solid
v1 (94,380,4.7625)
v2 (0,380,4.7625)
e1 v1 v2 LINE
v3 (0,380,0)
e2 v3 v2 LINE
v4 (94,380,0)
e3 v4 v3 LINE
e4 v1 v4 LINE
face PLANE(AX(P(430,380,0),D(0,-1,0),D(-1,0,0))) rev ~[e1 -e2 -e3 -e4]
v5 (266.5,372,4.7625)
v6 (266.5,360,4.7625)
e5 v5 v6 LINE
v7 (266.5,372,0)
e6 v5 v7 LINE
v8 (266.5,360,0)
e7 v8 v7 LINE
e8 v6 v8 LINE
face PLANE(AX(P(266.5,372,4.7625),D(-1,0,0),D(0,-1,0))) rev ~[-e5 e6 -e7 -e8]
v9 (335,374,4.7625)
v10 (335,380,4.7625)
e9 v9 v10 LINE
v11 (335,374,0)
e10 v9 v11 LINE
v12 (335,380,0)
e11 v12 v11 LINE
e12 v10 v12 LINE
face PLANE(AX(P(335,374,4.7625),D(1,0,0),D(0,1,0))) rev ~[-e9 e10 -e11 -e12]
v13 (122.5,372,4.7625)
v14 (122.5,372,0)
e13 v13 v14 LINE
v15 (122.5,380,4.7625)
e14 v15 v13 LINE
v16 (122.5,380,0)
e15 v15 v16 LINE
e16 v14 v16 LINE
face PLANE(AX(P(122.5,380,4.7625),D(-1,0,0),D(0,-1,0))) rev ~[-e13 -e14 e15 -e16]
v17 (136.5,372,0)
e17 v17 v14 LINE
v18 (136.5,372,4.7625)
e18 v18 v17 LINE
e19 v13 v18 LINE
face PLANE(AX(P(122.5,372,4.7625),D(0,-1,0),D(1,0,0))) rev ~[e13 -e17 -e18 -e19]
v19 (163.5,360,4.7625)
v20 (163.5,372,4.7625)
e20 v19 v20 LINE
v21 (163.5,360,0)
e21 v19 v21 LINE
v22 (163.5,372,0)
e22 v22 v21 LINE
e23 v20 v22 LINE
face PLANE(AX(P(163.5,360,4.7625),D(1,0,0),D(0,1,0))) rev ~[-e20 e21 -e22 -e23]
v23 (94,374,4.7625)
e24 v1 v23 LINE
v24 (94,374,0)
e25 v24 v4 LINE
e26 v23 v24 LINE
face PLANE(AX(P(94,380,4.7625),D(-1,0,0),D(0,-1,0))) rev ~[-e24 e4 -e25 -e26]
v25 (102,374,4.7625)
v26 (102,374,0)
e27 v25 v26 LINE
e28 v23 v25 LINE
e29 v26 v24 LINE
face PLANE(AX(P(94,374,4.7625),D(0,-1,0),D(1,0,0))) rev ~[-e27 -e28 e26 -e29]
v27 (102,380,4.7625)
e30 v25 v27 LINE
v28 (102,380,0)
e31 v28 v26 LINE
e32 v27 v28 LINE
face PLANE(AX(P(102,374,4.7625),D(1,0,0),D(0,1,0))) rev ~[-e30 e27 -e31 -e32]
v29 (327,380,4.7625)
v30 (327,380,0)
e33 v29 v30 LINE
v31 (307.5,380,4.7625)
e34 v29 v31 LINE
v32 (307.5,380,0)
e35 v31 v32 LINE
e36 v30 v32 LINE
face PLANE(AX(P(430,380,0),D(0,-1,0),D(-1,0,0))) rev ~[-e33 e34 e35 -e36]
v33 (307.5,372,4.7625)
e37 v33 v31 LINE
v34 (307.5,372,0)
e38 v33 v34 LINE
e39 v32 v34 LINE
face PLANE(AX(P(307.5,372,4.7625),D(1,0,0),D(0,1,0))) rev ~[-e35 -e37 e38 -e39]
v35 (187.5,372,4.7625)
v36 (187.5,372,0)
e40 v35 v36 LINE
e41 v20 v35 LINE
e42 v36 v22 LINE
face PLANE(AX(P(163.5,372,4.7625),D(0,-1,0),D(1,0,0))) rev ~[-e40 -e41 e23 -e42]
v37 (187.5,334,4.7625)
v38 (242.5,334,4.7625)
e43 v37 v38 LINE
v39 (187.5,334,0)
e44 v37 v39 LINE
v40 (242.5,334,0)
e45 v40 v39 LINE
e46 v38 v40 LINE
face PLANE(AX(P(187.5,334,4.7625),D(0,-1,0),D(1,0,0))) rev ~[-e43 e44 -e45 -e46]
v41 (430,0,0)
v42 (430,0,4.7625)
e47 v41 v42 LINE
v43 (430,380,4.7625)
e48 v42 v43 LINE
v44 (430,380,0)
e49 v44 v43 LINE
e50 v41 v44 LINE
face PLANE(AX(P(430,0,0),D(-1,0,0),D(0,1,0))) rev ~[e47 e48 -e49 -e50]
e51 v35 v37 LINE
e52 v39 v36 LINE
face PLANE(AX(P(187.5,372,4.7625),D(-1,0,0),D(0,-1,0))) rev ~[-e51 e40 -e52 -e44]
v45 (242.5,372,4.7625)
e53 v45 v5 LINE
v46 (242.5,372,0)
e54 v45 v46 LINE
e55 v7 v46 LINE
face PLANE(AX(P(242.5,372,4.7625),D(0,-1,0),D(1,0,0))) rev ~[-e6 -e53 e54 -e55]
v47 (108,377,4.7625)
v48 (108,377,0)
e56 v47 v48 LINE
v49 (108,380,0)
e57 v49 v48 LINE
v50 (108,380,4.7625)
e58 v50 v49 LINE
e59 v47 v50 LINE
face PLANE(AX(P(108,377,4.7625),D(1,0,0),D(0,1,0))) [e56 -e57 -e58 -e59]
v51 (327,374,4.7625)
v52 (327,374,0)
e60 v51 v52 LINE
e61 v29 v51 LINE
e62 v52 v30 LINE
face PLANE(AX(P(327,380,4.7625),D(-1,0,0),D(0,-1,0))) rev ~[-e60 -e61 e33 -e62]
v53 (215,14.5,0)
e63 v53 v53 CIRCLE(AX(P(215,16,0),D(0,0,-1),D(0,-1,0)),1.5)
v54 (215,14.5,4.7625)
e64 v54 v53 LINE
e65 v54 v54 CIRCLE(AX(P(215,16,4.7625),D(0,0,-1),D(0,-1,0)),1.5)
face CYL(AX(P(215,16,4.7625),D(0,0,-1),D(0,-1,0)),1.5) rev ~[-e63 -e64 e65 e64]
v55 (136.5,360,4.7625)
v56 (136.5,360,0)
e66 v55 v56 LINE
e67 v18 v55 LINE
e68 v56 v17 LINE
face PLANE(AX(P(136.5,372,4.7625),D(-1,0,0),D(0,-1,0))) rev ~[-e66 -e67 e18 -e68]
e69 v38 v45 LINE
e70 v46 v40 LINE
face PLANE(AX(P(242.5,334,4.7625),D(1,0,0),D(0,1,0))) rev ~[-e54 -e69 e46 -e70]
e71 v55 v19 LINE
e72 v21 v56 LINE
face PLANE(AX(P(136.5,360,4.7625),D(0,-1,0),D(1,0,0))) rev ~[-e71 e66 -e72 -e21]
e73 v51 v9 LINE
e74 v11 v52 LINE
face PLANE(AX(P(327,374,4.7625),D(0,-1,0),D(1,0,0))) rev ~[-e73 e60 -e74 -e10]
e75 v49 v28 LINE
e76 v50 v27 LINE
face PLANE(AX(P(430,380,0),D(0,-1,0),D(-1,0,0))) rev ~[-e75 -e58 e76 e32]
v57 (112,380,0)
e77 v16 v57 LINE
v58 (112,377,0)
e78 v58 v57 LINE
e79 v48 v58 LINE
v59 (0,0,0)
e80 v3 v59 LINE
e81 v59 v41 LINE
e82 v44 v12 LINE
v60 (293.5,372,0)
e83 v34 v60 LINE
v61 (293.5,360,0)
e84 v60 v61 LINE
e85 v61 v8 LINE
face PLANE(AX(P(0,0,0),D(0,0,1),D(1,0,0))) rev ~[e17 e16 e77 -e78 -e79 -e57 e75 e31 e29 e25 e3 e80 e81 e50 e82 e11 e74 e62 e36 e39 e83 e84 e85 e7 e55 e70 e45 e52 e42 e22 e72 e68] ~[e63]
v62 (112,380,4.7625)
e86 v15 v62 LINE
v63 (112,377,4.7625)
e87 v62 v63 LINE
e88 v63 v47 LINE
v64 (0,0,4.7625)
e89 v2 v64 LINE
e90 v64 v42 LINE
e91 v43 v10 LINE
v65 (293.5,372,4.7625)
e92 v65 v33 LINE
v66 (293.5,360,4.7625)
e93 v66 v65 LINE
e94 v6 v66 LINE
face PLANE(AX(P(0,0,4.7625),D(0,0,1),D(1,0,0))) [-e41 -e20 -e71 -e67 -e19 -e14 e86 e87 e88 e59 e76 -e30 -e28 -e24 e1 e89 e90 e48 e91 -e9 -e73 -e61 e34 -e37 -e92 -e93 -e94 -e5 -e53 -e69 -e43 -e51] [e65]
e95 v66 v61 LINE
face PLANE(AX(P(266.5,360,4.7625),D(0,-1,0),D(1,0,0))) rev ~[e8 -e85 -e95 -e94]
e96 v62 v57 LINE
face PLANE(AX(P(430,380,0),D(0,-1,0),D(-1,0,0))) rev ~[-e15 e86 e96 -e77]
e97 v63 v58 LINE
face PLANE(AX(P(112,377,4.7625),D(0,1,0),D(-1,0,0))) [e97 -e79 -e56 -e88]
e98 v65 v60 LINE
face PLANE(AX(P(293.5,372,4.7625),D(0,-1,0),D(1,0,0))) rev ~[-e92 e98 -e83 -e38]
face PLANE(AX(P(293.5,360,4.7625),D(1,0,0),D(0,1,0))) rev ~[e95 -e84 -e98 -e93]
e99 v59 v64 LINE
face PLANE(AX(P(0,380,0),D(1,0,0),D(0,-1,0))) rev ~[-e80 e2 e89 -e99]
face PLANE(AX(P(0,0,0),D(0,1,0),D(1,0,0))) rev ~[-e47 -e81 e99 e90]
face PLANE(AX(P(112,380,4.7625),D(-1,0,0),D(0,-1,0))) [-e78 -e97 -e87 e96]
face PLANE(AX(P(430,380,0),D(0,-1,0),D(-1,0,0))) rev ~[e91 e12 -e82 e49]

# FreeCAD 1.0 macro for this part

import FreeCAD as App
import Part
import Sketcher
from FreeCAD import Vector

doc = App.newDocument("Part")
body = doc.addObject("PartDesign::Body", "Body")

# Sketch on XY plane
sketch1 = doc.addObject("Sketcher::SketchObject", "Sketch")
body.addObject(sketch1)
sketch1.AttachmentSupport = (doc.XY_Plane, [""])
sketch1.MapMode = "FlatFace"
sketch1.addGeometry(Part.LineSegment(Vector(0, 380, 0), Vector(0, 0, 0)), False)
sketch1.addGeometry(Part.LineSegment(Vector(0, 0, 0), Vector(430, 0, 0)), False)
sketch1.addGeometry(Part.LineSegment(Vector(430, 0, 0), Vector(430, 380, 0)), False)
sketch1.addGeometry(Part.LineSegment(Vector(430, 380, 0), Vector(0, 380, 0)), False)
sketch1.addConstraint(Sketcher.Constraint("Coincident", 0, 2, 1, 1))
sketch1.addConstraint(Sketcher.Constraint("Coincident", 1, 2, 2, 1))
sketch1.addConstraint(Sketcher.Constraint("Coincident", 2, 2, 3, 1))
sketch1.addConstraint(Sketcher.Constraint("Coincident", 3, 2, 0, 1))
sketch1.addConstraint(Sketcher.Constraint("Vertical", 0))
sketch1.addConstraint(Sketcher.Constraint("Horizontal", 1))
sketch1.addConstraint(Sketcher.Constraint("Vertical", 2))
sketch1.addConstraint(Sketcher.Constraint("Horizontal", 3))
sketch1.addConstraint(Sketcher.Constraint("Coincident", 0, 2, -1, 1))
sketch1.addConstraint(Sketcher.Constraint("DistanceX", 1, 1, 1, 2, 430.0))
sketch1.addConstraint(Sketcher.Constraint("DistanceY", 0, 2, 0, 1, 380.0))
pad1 = doc.addObject("PartDesign::Pad", "Pad")
body.addObject(pad1)
pad1.Profile = sketch1
pad1.Length = 4.7625

# Sketch on XY plane
sketch2 = doc.addObject("Sketcher::SketchObject", "Sketch001")
body.addObject(sketch2)
sketch2.AttachmentSupport = (doc.XY_Plane, [""])
sketch2.MapMode = "FlatFace"
sketch2.AttachmentOffset = App.Placement(Vector(0, 0, 4.7625), App.Rotation())
sketch2.addGeometry(Part.Circle(Vector(215, 16, 0), Vector(0, 0, 1), 1.5), False)
sketch2.addConstraint(Sketcher.Constraint("Diameter", 0, 3.0))
sketch2.addConstraint(Sketcher.Constraint("DistanceX", -1, 1, 0, 3, 215.0))
sketch2.addConstraint(Sketcher.Constraint("DistanceY", -1, 1, 0, 3, 16.0))
doc.recompute()
hole = doc.addObject("PartDesign::Hole", "Hole")
body.addObject(hole)
hole.Profile = sketch2
hole.ThreadType = "None"
hole.Diameter = 3
hole.DepthType = "ThroughAll"

# Sketch on XY plane
sketch3 = doc.addObject("Sketcher::SketchObject", "Sketch002")
body.addObject(sketch3)
sketch3.AttachmentSupport = (doc.XY_Plane, [""])
sketch3.MapMode = "FlatFace"
sketch3.AttachmentOffset = App.Placement(Vector(0, 0, 4.7625), App.Rotation())
sketch3.addGeometry(Part.LineSegment(Vector(307.5, 372, 0), Vector(307.5, 380, 0)), False)
sketch3.addGeometry(Part.LineSegment(Vector(307.5, 380, 0), Vector(122.5, 380, 0)), False)
sketch3.addGeometry(Part.LineSegment(Vector(122.5, 380, 0), Vector(122.5, 372, 0)), False)
sketch3.addGeometry(Part.LineSegment(Vector(122.5, 372, 0), Vector(136.5, 372, 0)), False)
sketch3.addGeometry(Part.LineSegment(Vector(136.5, 372, 0), Vector(136.5, 360, 0)), False)
sketch3.addGeometry(Part.LineSegment(Vector(136.5, 360, 0), Vector(163.5, 360, 0)), False)
sketch3.addGeometry(Part.LineSegment(Vector(163.5, 360, 0), Vector(163.5, 372, 0)), False)
sketch3.addGeometry(Part.LineSegment(Vector(163.5, 372, 0), Vector(187.5, 372, 0)), False)
sketch3.addGeometry(Part.LineSegment(Vector(187.5, 372, 0), Vector(187.5, 334, 0)), False)
sketch3.addGeometry(Part.LineSegment(Vector(187.5, 334, 0), Vector(242.5, 334, 0)), False)
sketch3.addGeometry(Part.LineSegment(Vector(242.5, 334, 0), Vector(242.5, 372, 0)), False)
sketch3.addGeometry(Part.LineSegment(Vector(242.5, 372, 0), Vector(266.5, 372, 0)), False)
sketch3.addGeometry(Part.LineSegment(Vector(266.5, 372, 0), Vector(266.5, 360, 0)), False)
sketch3.addGeometry(Part.LineSegment(Vector(266.5, 360, 0), Vector(293.5, 360, 0)), False)
sketch3.addGeometry(Part.LineSegment(Vector(293.5, 360, 0), Vector(293.5, 372, 0)), False)
sketch3.addGeometry(Part.LineSegment(Vector(293.5, 372, 0), Vector(307.5, 372, 0)), False)
sketch3.addConstraint(Sketcher.Constraint("Coincident", 0, 2, 1, 1))
sketch3.addConstraint(Sketcher.Constraint("Coincident", 1, 2, 2, 1))
sketch3.addConstraint(Sketcher.Constraint("Coincident", 2, 2, 3, 1))
sketch3.addConstraint(Sketcher.Constraint("Coincident", 3, 2, 4, 1))
sketch3.addConstraint(Sketcher.Constraint("Coincident", 4, 2, 5, 1))
sketch3.addConstraint(Sketcher.Constraint("Coincident", 5, 2, 6, 1))
sketch3.addConstraint(Sketcher.Constraint("Coincident", 6, 2, 7, 1))
sketch3.addConstraint(Sketcher.Constraint("Coincident", 7, 2, 8, 1))
sketch3.addConstraint(Sketcher.Constraint("Coincident", 8, 2, 9, 1))
sketch3.addConstraint(Sketcher.Constraint("Coincident", 9, 2, 10, 1))
sketch3.addConstraint(Sketcher.Constraint("Coincident", 10, 2, 11, 1))
sketch3.addConstraint(Sketcher.Constraint("Coincident", 11, 2, 12, 1))
sketch3.addConstraint(Sketcher.Constraint("Coincident", 12, 2, 13, 1))
sketch3.addConstraint(Sketcher.Constraint("Coincident", 13, 2, 14, 1))
sketch3.addConstraint(Sketcher.Constraint("Coincident", 14, 2, 15, 1))
sketch3.addConstraint(Sketcher.Constraint("Coincident", 15, 2, 0, 1))
sketch3.addConstraint(Sketcher.Constraint("Vertical", 0))
sketch3.addConstraint(Sketcher.Constraint("Horizontal", 1))
sketch3.addConstraint(Sketcher.Constraint("Vertical", 2))
sketch3.addConstraint(Sketcher.Constraint("Horizontal", 3))
sketch3.addConstraint(Sketcher.Constraint("Vertical", 4))
sketch3.addConstraint(Sketcher.Constraint("Horizontal", 5))
sketch3.addConstraint(Sketcher.Constraint("Vertical", 6))
sketch3.addConstraint(Sketcher.Constraint("Horizontal", 7))
sketch3.addConstraint(Sketcher.Constraint("Vertical", 8))
sketch3.addConstraint(Sketcher.Constraint("Horizontal", 9))
sketch3.addConstraint(Sketcher.Constraint("Vertical", 10))
sketch3.addConstraint(Sketcher.Constraint("Horizontal", 11))
sketch3.addConstraint(Sketcher.Constraint("Vertical", 12))
sketch3.addConstraint(Sketcher.Constraint("Horizontal", 13))
sketch3.addConstraint(Sketcher.Constraint("Vertical", 14))
sketch3.addConstraint(Sketcher.Constraint("Horizontal", 15))
sketch3.addConstraint(Sketcher.Constraint("Horizontal", 3, 2, 6, 2))
sketch3.addConstraint(Sketcher.Constraint("Horizontal", 7, 2, 10, 2))
sketch3.addConstraint(Sketcher.Constraint("Horizontal", 5, 2, 12, 2))
sketch3.addConstraint(Sketcher.Constraint("Horizontal", 11, 2, 14, 2))
sketch3.addConstraint(Sketcher.Constraint("Equal", 7, 11))
sketch3.addConstraint(Sketcher.Constraint("Equal", 5, 13))
sketch3.addConstraint(Sketcher.Constraint("Equal", 3, 15))
sketch3.addConstraint(Sketcher.Constraint("DistanceX", 3, 1, 3, 2, 14.0))
sketch3.addConstraint(Sketcher.Constraint("DistanceX", 5, 1, 5, 2, 27.0))
sketch3.addConstraint(Sketcher.Constraint("DistanceX", 7, 1, 7, 2, 24.0))
sketch3.addConstraint(Sketcher.Constraint("DistanceX", 9, 1, 9, 2, 55.0))
sketch3.addConstraint(Sketcher.Constraint("DistanceY", 0, 1, 0, 2, 8.0))
sketch3.addConstraint(Sketcher.Constraint("DistanceY", 4, 2, 4, 1, 12.0))
sketch3.addConstraint(Sketcher.Constraint("DistanceY", 8, 2, 8, 1, 38.0))
sketch3.addConstraint(Sketcher.Constraint("DistanceY", -1, 1, 0, 2, 380.0))
sketch3.addConstraint(Sketcher.Constraint("DistanceX", -1, 1, 0, 2, 307.5))
pocket1 = doc.addObject("PartDesign::Pocket", "Pocket")
body.addObject(pocket1)
pocket1.Profile = sketch3
pocket1.Type = "UpToFirst"

# Sketch on XY plane
sketch4 = doc.addObject("Sketcher::SketchObject", "Sketch003")
body.addObject(sketch4)
sketch4.AttachmentSupport = (doc.XY_Plane, [""])
sketch4.MapMode = "FlatFace"
sketch4.AttachmentOffset = App.Placement(Vector(0, 0, 4.7625), App.Rotation())
sketch4.addGeometry(Part.LineSegment(Vector(102, 374, 0), Vector(102, 380, 0)), False)
sketch4.addGeometry(Part.LineSegment(Vector(102, 380, 0), Vector(94, 380, 0)), False)
sketch4.addGeometry(Part.LineSegment(Vector(94, 380, 0), Vector(94, 374, 0)), False)
sketch4.addGeometry(Part.LineSegment(Vector(94, 374, 0), Vector(102, 374, 0)), False)
sketch4.addGeometry(Part.LineSegment(Vector(335, 374, 0), Vector(335, 380, 0)), False)
sketch4.addGeometry(Part.LineSegment(Vector(335, 380, 0), Vector(327, 380, 0)), False)
sketch4.addGeometry(Part.LineSegment(Vector(327, 380, 0), Vector(327, 374, 0)), False)
sketch4.addGeometry(Part.LineSegment(Vector(327, 374, 0), Vector(335, 374, 0)), False)
sketch4.addConstraint(Sketcher.Constraint("Coincident", 0, 2, 1, 1))
sketch4.addConstraint(Sketcher.Constraint("Coincident", 1, 2, 2, 1))
sketch4.addConstraint(Sketcher.Constraint("Coincident", 2, 2, 3, 1))
sketch4.addConstraint(Sketcher.Constraint("Coincident", 3, 2, 0, 1))
sketch4.addConstraint(Sketcher.Constraint("Coincident", 4, 2, 5, 1))
sketch4.addConstraint(Sketcher.Constraint("Coincident", 5, 2, 6, 1))
sketch4.addConstraint(Sketcher.Constraint("Coincident", 6, 2, 7, 1))
sketch4.addConstraint(Sketcher.Constraint("Coincident", 7, 2, 4, 1))
sketch4.addConstraint(Sketcher.Constraint("Vertical", 0))
sketch4.addConstraint(Sketcher.Constraint("Horizontal", 1))
sketch4.addConstraint(Sketcher.Constraint("Vertical", 2))
sketch4.addConstraint(Sketcher.Constraint("Horizontal", 3))
sketch4.addConstraint(Sketcher.Constraint("Vertical", 4))
sketch4.addConstraint(Sketcher.Constraint("Horizontal", 5))
sketch4.addConstraint(Sketcher.Constraint("Vertical", 6))
sketch4.addConstraint(Sketcher.Constraint("Horizontal", 7))
sketch4.addConstraint(Sketcher.Constraint("Horizontal", 1, 2, 4, 2))
sketch4.addConstraint(Sketcher.Constraint("Horizontal", 3, 2, 6, 2))
sketch4.addConstraint(Sketcher.Constraint("Equal", 3, 5))
sketch4.addConstraint(Sketcher.Constraint("DistanceX", 1, 2, 1, 1, 8.0))
sketch4.addConstraint(Sketcher.Constraint("DistanceY", 0, 1, 0, 2, 6.0))
sketch4.addConstraint(Sketcher.Constraint("DistanceX", -1, 1, 1, 2, 94.0))
sketch4.addConstraint(Sketcher.Constraint("DistanceY", -1, 1, 0, 2, 380.0))
sketch4.addConstraint(Sketcher.Constraint("DistanceX", -1, 1, 4, 2, 335.0))
pocket2 = doc.addObject("PartDesign::Pocket", "Pocket001")
body.addObject(pocket2)
pocket2.Profile = sketch4
pocket2.Length = 4.7625

# Sketch on XY plane
sketch5 = doc.addObject("Sketcher::SketchObject", "Sketch004")
body.addObject(sketch5)
sketch5.AttachmentSupport = (doc.XY_Plane, [""])
sketch5.MapMode = "FlatFace"
sketch5.AttachmentOffset = App.Placement(Vector(0, 0, 4.7625), App.Rotation())
sketch5.addGeometry(Part.LineSegment(Vector(112, 377, 0), Vector(112, 380, 0)), False)
sketch5.addGeometry(Part.LineSegment(Vector(112, 380, 0), Vector(108, 380, 0)), False)
sketch5.addGeometry(Part.LineSegment(Vector(108, 380, 0), Vector(108, 377, 0)), False)
sketch5.addGeometry(Part.LineSegment(Vector(108, 377, 0), Vector(112, 377, 0)), False)
sketch5.addConstraint(Sketcher.Constraint("Coincident", 0, 2, 1, 1))
sketch5.addConstraint(Sketcher.Constraint("Coincident", 1, 2, 2, 1))
sketch5.addConstraint(Sketcher.Constraint("Coincident", 2, 2, 3, 1))
sketch5.addConstraint(Sketcher.Constraint("Coincident", 3, 2, 0, 1))
sketch5.addConstraint(Sketcher.Constraint("Vertical", 0))
sketch5.addConstraint(Sketcher.Constraint("Horizontal", 1))
sketch5.addConstraint(Sketcher.Constraint("Vertical", 2))
sketch5.addConstraint(Sketcher.Constraint("Horizontal", 3))
sketch5.addConstraint(Sketcher.Constraint("DistanceX", 1, 2, 1, 1, 4.0))
sketch5.addConstraint(Sketcher.Constraint("DistanceY", 0, 1, 0, 2, 3.0))
sketch5.addConstraint(Sketcher.Constraint("DistanceX", -1, 1, 0, 2, 112.0))
sketch5.addConstraint(Sketcher.Constraint("DistanceY", -1, 1, 0, 2, 380.0))
pocket3 = doc.addObject("PartDesign::Pocket", "Pocket002")
body.addObject(pocket3)
pocket3.Profile = sketch5
pocket3.Type = "UpToFirst"

doc.recompute()
